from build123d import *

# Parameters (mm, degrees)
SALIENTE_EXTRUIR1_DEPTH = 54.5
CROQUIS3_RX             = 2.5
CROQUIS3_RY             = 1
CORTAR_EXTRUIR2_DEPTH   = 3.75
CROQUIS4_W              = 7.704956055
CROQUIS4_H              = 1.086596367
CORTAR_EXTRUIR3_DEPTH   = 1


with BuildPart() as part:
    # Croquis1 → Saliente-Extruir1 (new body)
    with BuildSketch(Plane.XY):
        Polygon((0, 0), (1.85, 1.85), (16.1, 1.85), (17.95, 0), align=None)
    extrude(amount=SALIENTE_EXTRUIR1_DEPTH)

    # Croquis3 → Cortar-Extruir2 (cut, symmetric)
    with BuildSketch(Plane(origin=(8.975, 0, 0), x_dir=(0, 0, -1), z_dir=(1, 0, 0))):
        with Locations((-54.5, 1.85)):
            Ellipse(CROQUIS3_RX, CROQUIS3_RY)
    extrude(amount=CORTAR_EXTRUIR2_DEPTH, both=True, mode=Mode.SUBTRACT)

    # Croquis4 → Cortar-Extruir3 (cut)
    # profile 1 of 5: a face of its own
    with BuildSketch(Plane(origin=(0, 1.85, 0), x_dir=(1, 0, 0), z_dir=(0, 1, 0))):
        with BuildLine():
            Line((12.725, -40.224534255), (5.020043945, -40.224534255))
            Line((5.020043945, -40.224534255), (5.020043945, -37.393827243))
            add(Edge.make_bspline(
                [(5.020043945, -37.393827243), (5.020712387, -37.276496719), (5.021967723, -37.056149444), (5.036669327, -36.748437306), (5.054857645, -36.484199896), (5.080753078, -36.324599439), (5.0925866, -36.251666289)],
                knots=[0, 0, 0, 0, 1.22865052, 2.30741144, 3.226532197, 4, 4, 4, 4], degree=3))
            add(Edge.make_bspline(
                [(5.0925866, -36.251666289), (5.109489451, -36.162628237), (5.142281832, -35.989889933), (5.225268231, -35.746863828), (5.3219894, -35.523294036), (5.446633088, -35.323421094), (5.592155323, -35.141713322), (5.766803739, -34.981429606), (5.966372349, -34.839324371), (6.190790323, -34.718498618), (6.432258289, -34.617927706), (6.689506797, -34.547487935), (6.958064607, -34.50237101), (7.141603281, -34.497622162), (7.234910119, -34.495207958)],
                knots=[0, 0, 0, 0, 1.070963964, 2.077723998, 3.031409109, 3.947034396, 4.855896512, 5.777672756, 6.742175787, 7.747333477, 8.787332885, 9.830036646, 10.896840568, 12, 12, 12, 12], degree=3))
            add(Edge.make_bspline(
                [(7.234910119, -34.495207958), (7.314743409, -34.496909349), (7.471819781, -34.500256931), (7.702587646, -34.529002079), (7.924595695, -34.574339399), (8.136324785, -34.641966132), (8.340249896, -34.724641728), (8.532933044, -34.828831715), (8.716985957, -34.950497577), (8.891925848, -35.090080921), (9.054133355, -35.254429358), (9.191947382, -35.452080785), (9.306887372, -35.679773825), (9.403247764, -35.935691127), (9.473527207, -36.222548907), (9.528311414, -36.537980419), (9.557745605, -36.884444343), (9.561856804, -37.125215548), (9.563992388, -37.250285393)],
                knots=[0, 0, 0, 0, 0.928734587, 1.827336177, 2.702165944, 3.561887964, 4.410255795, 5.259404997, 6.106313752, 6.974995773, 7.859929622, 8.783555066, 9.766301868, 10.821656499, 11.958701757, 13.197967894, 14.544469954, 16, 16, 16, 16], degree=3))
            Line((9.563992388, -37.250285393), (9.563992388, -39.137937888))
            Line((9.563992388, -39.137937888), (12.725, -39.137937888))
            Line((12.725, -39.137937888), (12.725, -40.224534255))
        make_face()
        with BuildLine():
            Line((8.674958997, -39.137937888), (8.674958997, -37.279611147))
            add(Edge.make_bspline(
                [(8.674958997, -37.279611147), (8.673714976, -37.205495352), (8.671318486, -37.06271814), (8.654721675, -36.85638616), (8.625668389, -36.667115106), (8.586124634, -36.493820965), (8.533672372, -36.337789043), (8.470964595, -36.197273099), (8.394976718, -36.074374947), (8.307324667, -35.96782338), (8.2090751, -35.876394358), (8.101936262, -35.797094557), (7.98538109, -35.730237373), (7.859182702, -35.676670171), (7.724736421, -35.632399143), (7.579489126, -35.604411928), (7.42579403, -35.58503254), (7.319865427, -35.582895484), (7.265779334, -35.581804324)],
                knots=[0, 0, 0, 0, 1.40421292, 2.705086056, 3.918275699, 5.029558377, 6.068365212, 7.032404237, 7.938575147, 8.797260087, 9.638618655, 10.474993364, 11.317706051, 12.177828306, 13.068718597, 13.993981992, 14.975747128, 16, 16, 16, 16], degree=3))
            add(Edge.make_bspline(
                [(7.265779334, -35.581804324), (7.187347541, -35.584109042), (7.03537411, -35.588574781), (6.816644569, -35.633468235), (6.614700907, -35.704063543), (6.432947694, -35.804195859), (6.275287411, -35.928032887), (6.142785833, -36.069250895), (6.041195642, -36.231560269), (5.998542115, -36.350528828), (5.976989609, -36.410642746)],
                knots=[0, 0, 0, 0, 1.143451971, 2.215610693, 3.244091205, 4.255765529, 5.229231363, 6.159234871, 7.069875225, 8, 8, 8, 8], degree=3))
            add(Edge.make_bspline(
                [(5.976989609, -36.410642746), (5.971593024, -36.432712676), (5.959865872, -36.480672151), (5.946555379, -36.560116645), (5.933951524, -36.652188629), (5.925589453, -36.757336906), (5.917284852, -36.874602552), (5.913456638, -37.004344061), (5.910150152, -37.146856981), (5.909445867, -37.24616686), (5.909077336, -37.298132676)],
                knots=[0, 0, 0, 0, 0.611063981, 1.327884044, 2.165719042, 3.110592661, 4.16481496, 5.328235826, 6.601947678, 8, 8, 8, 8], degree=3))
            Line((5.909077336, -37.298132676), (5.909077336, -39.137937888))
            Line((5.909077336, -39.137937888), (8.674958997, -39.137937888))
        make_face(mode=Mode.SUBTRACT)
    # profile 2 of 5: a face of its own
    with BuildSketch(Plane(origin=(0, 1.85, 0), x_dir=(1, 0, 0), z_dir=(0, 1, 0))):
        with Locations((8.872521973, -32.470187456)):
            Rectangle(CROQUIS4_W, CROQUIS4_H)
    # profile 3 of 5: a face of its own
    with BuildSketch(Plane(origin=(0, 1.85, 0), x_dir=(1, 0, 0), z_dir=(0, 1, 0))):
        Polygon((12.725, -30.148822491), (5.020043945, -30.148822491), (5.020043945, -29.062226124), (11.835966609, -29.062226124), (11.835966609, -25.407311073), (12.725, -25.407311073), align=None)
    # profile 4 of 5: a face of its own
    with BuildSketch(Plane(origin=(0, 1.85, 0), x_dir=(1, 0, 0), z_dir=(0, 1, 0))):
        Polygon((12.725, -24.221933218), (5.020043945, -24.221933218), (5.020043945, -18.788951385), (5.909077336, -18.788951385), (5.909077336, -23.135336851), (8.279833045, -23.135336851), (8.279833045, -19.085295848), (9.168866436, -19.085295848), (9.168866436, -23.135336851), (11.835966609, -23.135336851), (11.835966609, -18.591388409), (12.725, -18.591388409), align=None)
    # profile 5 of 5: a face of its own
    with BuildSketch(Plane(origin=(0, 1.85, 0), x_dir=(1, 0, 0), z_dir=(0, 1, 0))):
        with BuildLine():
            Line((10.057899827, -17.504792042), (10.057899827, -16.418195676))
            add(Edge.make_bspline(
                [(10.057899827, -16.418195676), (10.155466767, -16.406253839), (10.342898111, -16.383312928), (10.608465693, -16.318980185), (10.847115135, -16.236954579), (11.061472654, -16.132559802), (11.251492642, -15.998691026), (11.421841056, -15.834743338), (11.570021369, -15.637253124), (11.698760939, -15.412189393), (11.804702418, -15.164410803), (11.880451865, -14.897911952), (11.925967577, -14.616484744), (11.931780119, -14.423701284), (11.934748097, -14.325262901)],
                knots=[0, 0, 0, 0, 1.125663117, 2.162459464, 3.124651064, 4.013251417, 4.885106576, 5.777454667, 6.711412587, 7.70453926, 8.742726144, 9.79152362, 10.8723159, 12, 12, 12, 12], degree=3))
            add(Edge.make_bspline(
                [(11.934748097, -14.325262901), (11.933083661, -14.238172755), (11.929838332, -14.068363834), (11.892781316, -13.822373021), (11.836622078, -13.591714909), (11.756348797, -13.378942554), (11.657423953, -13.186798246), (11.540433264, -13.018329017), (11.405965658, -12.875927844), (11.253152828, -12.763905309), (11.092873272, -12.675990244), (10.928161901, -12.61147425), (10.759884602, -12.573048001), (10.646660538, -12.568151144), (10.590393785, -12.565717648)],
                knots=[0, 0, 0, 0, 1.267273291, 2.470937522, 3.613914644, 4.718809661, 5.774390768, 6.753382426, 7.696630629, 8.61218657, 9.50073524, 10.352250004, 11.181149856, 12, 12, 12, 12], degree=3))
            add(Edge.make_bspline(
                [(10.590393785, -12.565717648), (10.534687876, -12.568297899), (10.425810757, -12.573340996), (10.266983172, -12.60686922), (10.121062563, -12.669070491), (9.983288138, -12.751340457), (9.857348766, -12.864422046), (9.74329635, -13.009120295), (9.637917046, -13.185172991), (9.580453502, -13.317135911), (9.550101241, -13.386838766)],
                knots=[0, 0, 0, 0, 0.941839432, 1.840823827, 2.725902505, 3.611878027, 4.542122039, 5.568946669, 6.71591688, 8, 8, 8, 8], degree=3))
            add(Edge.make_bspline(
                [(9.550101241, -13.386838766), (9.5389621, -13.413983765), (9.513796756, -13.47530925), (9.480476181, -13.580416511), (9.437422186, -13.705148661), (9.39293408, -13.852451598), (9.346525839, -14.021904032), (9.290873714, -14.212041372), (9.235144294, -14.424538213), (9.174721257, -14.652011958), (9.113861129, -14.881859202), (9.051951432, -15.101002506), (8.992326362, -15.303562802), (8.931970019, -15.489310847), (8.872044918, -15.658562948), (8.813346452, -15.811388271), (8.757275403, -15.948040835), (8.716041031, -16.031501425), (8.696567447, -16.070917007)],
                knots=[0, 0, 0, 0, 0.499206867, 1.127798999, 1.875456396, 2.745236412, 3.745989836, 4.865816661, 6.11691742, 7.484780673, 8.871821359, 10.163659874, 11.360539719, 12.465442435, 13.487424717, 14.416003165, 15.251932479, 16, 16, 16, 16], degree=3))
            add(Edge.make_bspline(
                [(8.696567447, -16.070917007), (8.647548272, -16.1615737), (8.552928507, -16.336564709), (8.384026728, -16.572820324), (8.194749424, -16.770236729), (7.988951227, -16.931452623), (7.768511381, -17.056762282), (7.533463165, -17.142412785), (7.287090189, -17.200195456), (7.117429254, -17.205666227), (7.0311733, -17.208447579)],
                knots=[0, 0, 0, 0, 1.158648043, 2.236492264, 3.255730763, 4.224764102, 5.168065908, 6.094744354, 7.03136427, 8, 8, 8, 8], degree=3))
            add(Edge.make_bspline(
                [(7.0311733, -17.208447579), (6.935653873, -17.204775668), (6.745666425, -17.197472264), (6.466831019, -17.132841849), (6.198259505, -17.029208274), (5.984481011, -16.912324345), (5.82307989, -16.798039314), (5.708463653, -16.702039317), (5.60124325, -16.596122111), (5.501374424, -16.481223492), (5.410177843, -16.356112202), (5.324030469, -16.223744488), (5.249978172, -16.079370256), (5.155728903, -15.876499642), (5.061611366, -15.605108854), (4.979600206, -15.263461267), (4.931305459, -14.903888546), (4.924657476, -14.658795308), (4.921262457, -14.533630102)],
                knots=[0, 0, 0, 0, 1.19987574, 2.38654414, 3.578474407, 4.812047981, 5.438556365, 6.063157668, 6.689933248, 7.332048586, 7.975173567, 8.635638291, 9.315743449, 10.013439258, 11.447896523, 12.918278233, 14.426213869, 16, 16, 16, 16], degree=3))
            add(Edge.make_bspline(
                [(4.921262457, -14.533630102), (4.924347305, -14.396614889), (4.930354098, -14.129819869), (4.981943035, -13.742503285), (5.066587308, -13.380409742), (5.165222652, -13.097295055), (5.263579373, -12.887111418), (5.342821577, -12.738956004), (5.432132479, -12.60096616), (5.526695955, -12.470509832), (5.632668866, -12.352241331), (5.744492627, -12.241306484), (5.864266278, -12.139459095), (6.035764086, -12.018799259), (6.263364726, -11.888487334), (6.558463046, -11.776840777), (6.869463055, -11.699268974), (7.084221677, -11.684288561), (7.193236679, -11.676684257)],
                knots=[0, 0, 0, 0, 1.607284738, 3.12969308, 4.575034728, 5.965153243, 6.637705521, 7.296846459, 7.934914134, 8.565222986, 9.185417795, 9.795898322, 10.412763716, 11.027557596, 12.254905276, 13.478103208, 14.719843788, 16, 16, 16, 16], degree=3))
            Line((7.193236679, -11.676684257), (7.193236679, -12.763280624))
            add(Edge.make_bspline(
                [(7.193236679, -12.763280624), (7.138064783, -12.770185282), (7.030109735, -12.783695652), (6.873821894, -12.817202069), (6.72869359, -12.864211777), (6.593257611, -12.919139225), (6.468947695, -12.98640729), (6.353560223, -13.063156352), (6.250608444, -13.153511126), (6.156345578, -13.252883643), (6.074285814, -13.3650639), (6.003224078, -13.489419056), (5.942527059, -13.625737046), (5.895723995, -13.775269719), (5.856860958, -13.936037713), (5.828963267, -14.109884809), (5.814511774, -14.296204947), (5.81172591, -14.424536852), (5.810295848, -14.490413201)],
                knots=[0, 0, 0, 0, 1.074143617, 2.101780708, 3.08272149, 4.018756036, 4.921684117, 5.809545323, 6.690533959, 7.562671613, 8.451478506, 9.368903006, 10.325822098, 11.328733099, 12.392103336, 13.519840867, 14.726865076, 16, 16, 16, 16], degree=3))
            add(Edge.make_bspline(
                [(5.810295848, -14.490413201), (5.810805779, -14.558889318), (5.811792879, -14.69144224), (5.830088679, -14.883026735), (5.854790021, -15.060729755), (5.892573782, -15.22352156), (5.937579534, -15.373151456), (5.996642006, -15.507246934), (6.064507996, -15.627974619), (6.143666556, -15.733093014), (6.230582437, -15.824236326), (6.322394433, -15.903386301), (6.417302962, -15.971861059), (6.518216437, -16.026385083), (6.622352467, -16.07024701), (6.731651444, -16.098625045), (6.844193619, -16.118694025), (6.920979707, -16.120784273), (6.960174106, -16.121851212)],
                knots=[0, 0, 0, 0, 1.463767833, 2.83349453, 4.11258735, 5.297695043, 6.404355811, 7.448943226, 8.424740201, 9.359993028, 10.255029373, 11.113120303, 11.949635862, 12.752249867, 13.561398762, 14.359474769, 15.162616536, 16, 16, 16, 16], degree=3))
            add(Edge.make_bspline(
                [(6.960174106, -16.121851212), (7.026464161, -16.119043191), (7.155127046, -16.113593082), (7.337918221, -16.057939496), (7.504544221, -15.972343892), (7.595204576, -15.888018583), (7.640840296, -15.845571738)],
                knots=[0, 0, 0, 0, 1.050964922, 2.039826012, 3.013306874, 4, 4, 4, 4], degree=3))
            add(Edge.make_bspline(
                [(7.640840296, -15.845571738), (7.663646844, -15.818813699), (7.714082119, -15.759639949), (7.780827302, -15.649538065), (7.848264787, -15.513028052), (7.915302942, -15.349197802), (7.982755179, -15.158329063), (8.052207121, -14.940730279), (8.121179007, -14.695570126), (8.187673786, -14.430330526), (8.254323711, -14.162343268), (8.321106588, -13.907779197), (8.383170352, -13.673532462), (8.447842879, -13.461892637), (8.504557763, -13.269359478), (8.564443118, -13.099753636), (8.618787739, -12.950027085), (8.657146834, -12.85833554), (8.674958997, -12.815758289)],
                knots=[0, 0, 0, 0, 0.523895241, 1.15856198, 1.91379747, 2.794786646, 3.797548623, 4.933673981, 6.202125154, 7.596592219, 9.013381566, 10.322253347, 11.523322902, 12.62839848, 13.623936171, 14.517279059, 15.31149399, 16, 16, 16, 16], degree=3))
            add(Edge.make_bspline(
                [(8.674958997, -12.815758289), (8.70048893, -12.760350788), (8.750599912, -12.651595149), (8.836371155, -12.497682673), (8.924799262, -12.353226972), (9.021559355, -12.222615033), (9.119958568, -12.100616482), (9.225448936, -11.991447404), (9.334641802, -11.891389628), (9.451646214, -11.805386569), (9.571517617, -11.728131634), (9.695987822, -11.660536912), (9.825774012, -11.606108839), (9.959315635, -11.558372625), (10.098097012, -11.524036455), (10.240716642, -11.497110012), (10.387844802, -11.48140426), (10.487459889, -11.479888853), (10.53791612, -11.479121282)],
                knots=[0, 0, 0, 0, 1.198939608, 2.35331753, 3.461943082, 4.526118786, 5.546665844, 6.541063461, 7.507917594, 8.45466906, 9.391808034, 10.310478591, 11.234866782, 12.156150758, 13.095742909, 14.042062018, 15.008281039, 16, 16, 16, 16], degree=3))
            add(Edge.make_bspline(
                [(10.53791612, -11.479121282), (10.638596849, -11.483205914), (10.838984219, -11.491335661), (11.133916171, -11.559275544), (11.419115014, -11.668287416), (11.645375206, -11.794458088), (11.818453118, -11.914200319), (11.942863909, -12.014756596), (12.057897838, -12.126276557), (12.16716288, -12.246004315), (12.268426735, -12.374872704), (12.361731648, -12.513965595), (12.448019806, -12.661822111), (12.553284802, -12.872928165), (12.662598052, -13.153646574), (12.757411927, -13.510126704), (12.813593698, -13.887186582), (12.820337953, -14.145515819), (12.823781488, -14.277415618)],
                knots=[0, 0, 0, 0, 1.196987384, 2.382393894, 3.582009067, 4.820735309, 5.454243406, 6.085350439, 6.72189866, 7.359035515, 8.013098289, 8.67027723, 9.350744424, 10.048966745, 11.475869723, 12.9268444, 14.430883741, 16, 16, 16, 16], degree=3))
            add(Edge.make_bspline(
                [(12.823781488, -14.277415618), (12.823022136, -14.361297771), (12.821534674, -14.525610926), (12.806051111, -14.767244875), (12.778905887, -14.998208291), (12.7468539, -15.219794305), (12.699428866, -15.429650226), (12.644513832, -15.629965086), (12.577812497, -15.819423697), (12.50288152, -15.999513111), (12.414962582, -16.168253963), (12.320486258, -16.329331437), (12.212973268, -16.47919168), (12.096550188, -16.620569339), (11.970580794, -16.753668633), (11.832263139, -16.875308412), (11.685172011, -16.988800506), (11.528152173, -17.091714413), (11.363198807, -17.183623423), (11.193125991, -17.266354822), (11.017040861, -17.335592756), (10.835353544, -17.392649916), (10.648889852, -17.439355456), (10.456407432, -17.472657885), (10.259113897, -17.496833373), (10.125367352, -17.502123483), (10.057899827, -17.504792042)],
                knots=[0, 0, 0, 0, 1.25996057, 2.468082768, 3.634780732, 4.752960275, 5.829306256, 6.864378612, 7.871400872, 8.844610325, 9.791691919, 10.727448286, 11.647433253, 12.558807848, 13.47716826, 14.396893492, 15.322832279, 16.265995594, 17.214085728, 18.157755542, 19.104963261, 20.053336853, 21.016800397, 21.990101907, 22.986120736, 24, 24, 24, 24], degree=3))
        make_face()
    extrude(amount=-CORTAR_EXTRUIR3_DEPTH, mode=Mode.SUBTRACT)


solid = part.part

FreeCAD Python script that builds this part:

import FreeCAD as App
import Part
import Sketcher

V = App.Vector
Q = App.Units.Quantity


def add_polygon(sketch, points):
    """Adds a closed chain of lines whose ends are joined by coincident constraints."""
    first, n = sketch.GeometryCount, len(points)
    for a, b in zip(points, points[1:] + points[:1]):
        sketch.addGeometry(Part.LineSegment(App.Vector(*a, 0), App.Vector(*b, 0)), False)
    for i in range(n):
        sketch.addConstraint(Sketcher.Constraint("Coincident", first + i, 2, first + (i + 1) % n, 1))

doc = App.newDocument("Part")
body = doc.addObject("PartDesign::Body", "Body")

# Sketch on XY plane
sketch1 = body.newObject("Sketcher::SketchObject", "Sketch")
sketch1.AttachmentSupport = (doc.getObject("XY_Plane"), [""])
sketch1.MapMode = "FlatFace"
add_polygon(sketch1, [(1.85, 1.85), (0, 0), (17.95, 0), (16.1, 1.85)])  # lines 0-3
sketch1.addConstraint([
    Sketcher.Constraint("Horizontal", 1),
    Sketcher.Constraint("Horizontal", 3),
    Sketcher.Constraint("Coincident", 0, 2, -1, 1),
    Sketcher.Constraint("Perpendicular", 0, 2),
    Sketcher.Constraint("Equal", 0, 2),
    Sketcher.Constraint("DistanceX", 1, 1, 1, 2, Q("17.95 mm")),
    Sketcher.Constraint("DistanceX", 3, 2, 3, 1, Q("14.25 mm")),
])
pad1 = body.newObject("PartDesign::Pad", "Pad")
pad1.Profile = sketch1
pad1.Length = 54.5

# Sketch on YZ plane
sketch2 = body.newObject("Sketcher::SketchObject", "Sketch001")
sketch2.AttachmentSupport = (doc.getObject("YZ_Plane"), [""])
sketch2.MapMode = "FlatFace"
sketch2.AttachmentOffset = App.Placement(V(0, 0, 8.975), App.Rotation())
sketch2.addGeometry(Part.Ellipse(V(1.85, 52, 0), V(2.85, 54.5, 0), V(1.85, 54.5, 0)), False)
sketch2.addConstraint(Sketcher.Constraint("Block", 0))
pocket1 = body.newObject("PartDesign::Pocket", "Pocket")
pocket1.Profile = sketch2
pocket1.Length = 7.5
pocket1.Midplane = True

# Sketch on XZ plane
sketch3 = body.newObject("Sketcher::SketchObject", "Sketch002")
sketch3.AttachmentSupport = (doc.getObject("XZ_Plane"), [""])
sketch3.MapMode = "FlatFace"
sketch3.AttachmentOffset = App.Placement(V(0, 0, -1.85), App.Rotation())
sketch3.addGeometry(Part.LineSegment(V(5.020044, 40.224534, 0), V(12.725, 40.224534, 0)), False)  # 0
sketch3.addGeometry(Part.LineSegment(V(12.725, 40.224534, 0), V(12.725, 39.137938, 0)), False)  # 1
sketch3.addGeometry(Part.LineSegment(V(12.725, 39.137938, 0), V(9.563992, 39.137938, 0)), False)  # 2
sketch3.addGeometry(Part.LineSegment(V(9.563992, 39.137938, 0), V(9.563992, 37.250285, 0)), False)  # 3
sketch3.addGeometry(Part.BSplineCurve([V(7.23491, 34.495208, 0), V(7.314743, 34.496909, 0), V(7.47182, 34.500257, 0), V(7.702588, 34.529002, 0), V(7.924596, 34.574339, 0), V(8.136325, 34.641966, 0), V(8.34025, 34.724642, 0), V(8.532933, 34.828832, 0), V(8.716986, 34.950498, 0), V(8.891926, 35.090081, 0), V(9.054133, 35.254429, 0), V(9.191947, 35.452081, 0), V(9.306887, 35.679774, 0), V(9.403248, 35.935691, 0), V(9.473527, 36.222549, 0), V(9.528311, 36.53798, 0), V(9.557746, 36.884444, 0), V(9.561857, 37.125216, 0), V(9.563992, 37.250285, 0)], [4, 1, 1, 1, 1, 1, 1, 1, 1, 1, 1, 1, 1, 1, 1, 1, 4], [0, 0.928734587, 1.827336177, 2.702165944, 3.561887964, 4.410255795, 5.259404997, 6.106313752, 6.974995773, 7.859929622, 8.783555066, 9.766301868, 10.821656499, 11.958701757, 13.197967894, 14.544469954, 16], False, 3, [1, 1, 1, 1, 1, 1, 1, 1, 1, 1, 1, 1, 1, 1, 1, 1, 1, 1, 1], False), False)  # 4
sketch3.addGeometry(Part.BSplineCurve([V(5.092587, 36.251666, 0), V(5.109489, 36.162628, 0), V(5.142282, 35.98989, 0), V(5.225268, 35.746864, 0), V(5.321989, 35.523294, 0), V(5.446633, 35.323421, 0), V(5.592155, 35.141713, 0), V(5.766804, 34.98143, 0), V(5.966372, 34.839324, 0), V(6.19079, 34.718499, 0), V(6.432258, 34.617928, 0), V(6.689507, 34.547488, 0), V(6.958065, 34.502371, 0), V(7.141603, 34.497622, 0), V(7.23491, 34.495208, 0)], [4, 1, 1, 1, 1, 1, 1, 1, 1, 1, 1, 1, 4], [0, 1.070963964, 2.077723998, 3.031409109, 3.947034396, 4.855896512, 5.777672756, 6.742175787, 7.747333477, 8.787332885, 9.830036646, 10.896840568, 12], False, 3, [1, 1, 1, 1, 1, 1, 1, 1, 1, 1, 1, 1, 1, 1, 1], False), False)  # 5
sketch3.addGeometry(Part.BSplineCurve([V(5.020044, 37.393827, 0), V(5.020712, 37.276497, 0), V(5.021968, 37.056149, 0), V(5.036669, 36.748437, 0), V(5.054858, 36.4842, 0), V(5.080753, 36.324599, 0), V(5.092587, 36.251666, 0)], [4, 1, 1, 1, 4], [0, 1.22865052, 2.30741144, 3.226532197, 4], False, 3, [1, 1, 1, 1, 1, 1, 1], False), False)  # 6
sketch3.addGeometry(Part.LineSegment(V(5.020044, 37.393827, 0), V(5.020044, 40.224534, 0)), False)  # 7
sketch3.addGeometry(Part.LineSegment(V(8.674959, 39.137938, 0), V(5.909077, 39.137938, 0)), False)  # 8
sketch3.addGeometry(Part.LineSegment(V(5.909077, 39.137938, 0), V(5.909077, 37.298133, 0)), False)  # 9
sketch3.addGeometry(Part.BSplineCurve([V(5.97699, 36.410643, 0), V(5.971593, 36.432713, 0), V(5.959866, 36.480672, 0), V(5.946555, 36.560117, 0), V(5.933952, 36.652189, 0), V(5.925589, 36.757337, 0), V(5.917285, 36.874603, 0), V(5.913457, 37.004344, 0), V(5.91015, 37.146857, 0), V(5.909446, 37.246167, 0), V(5.909077, 37.298133, 0)], [4, 1, 1, 1, 1, 1, 1, 1, 4], [0, 0.611063981, 1.327884044, 2.165719042, 3.110592661, 4.16481496, 5.328235826, 6.601947678, 8], False, 3, [1, 1, 1, 1, 1, 1, 1, 1, 1, 1, 1], False), False)  # 10
sketch3.addGeometry(Part.BSplineCurve([V(7.265779, 35.581804, 0), V(7.187348, 35.584109, 0), V(7.035374, 35.588575, 0), V(6.816645, 35.633468, 0), V(6.614701, 35.704064, 0), V(6.432948, 35.804196, 0), V(6.275287, 35.928033, 0), V(6.142786, 36.069251, 0), V(6.041196, 36.23156, 0), V(5.998542, 36.350529, 0), V(5.97699, 36.410643, 0)], [4, 1, 1, 1, 1, 1, 1, 1, 4], [0, 1.143451971, 2.215610693, 3.244091205, 4.255765529, 5.229231363, 6.159234871, 7.069875225, 8], False, 3, [1, 1, 1, 1, 1, 1, 1, 1, 1, 1, 1], False), False)  # 11
sketch3.addGeometry(Part.BSplineCurve([V(8.674959, 37.279611, 0), V(8.673715, 37.205495, 0), V(8.671318, 37.062718, 0), V(8.654722, 36.856386, 0), V(8.625668, 36.667115, 0), V(8.586125, 36.493821, 0), V(8.533672, 36.337789, 0), V(8.470965, 36.197273, 0), V(8.394977, 36.074375, 0), V(8.307325, 35.967823, 0), V(8.209075, 35.876394, 0), V(8.101936, 35.797095, 0), V(7.985381, 35.730237, 0), V(7.859183, 35.67667, 0), V(7.724736, 35.632399, 0), V(7.579489, 35.604412, 0), V(7.425794, 35.585033, 0), V(7.319865, 35.582895, 0), V(7.265779, 35.581804, 0)], [4, 1, 1, 1, 1, 1, 1, 1, 1, 1, 1, 1, 1, 1, 1, 1, 4], [0, 1.40421292, 2.705086056, 3.918275699, 5.029558377, 6.068365212, 7.032404237, 7.938575147, 8.797260087, 9.638618655, 10.474993364, 11.317706051, 12.177828306, 13.068718597, 13.993981992, 14.975747128, 16], False, 3, [1, 1, 1, 1, 1, 1, 1, 1, 1, 1, 1, 1, 1, 1, 1, 1, 1, 1, 1], False), False)  # 12
sketch3.addGeometry(Part.LineSegment(V(8.674959, 37.279611, 0), V(8.674959, 39.137938, 0)), False)  # 13
add_polygon(sketch3, [(5.020044, 31.926889), (5.020044, 33.013486), (12.725, 33.013486), (12.725, 31.926889)])  # lines 14-17
add_polygon(sketch3, [(5.020044, 30.148822), (12.725, 30.148822), (12.725, 25.407311), (11.835967, 25.407311), (11.835967, 29.062226), (5.020044, 29.062226)])  # lines 18-23
add_polygon(sketch3, [(5.020044, 24.221933), (12.725, 24.221933), (12.725, 18.591388), (11.835967, 18.591388), (11.835967, 23.135337), (9.168866, 23.135337), (9.168866, 19.085296), (8.279833, 19.085296), (8.279833, 23.135337), (5.909077, 23.135337), (5.909077, 18.788951), (5.020044, 18.788951)])  # lines 24-35
sketch3.addGeometry(Part.LineSegment(V(10.0579, 16.418196, 0), V(10.0579, 17.504792, 0)), False)  # 36
sketch3.addGeometry(Part.BSplineCurve([V(12.823781, 14.277416, 0), V(12.823022, 14.361298, 0), V(12.821535, 14.525611, 0), V(12.806051, 14.767245, 0), V(12.778906, 14.998208, 0), V(12.746854, 15.219794, 0), V(12.699429, 15.42965, 0), V(12.644514, 15.629965, 0), V(12.577812, 15.819424, 0), V(12.502882, 15.999513, 0), V(12.414963, 16.168254, 0), V(12.320486, 16.329331, 0), V(12.212973, 16.479192, 0), V(12.09655, 16.620569, 0), V(11.970581, 16.753669, 0), V(11.832263, 16.875308, 0), V(11.685172, 16.988801, 0), V(11.528152, 17.091714, 0), V(11.363199, 17.183623, 0), V(11.193126, 17.266355, 0), V(11.017041, 17.335593, 0), V(10.835354, 17.39265, 0), V(10.64889, 17.439355, 0), V(10.456407, 17.472658, 0), V(10.259114, 17.496833, 0), V(10.125367, 17.502123, 0), V(10.0579, 17.504792, 0)], [4, 1, 1, 1, 1, 1, 1, 1, 1, 1, 1, 1, 1, 1, 1, 1, 1, 1, 1, 1, 1, 1, 1, 1, 4], [0, 1.25996057, 2.468082768, 3.634780732, 4.752960275, 5.829306256, 6.864378612, 7.871400872, 8.844610325, 9.791691919, 10.727448286, 11.647433253, 12.558807848, 13.47716826, 14.396893492, 15.322832279, 16.265995594, 17.214085728, 18.157755542, 19.104963261, 20.053336853, 21.016800397, 21.990101907, 22.986120736, 24], False, 3, [1, 1, 1, 1, 1, 1, 1, 1, 1, 1, 1, 1, 1, 1, 1, 1, 1, 1, 1, 1, 1, 1, 1, 1, 1, 1, 1], False), False)  # 37
sketch3.addGeometry(Part.BSplineCurve([V(10.537916, 11.479121, 0), V(10.638597, 11.483206, 0), V(10.838984, 11.491336, 0), V(11.133916, 11.559276, 0), V(11.419115, 11.668287, 0), V(11.645375, 11.794458, 0), V(11.818453, 11.9142, 0), V(11.942864, 12.014757, 0), V(12.057898, 12.126277, 0), V(12.167163, 12.246004, 0), V(12.268427, 12.374873, 0), V(12.361732, 12.513966, 0), V(12.44802, 12.661822, 0), V(12.553285, 12.872928, 0), V(12.662598, 13.153647, 0), V(12.757412, 13.510127, 0), V(12.813594, 13.887187, 0), V(12.820338, 14.145516, 0), V(12.823781, 14.277416, 0)], [4, 1, 1, 1, 1, 1, 1, 1, 1, 1, 1, 1, 1, 1, 1, 1, 4], [0, 1.196987384, 2.382393894, 3.582009067, 4.820735309, 5.454243406, 6.085350439, 6.72189866, 7.359035515, 8.013098289, 8.67027723, 9.350744424, 10.048966745, 11.475869723, 12.9268444, 14.430883741, 16], False, 3, [1, 1, 1, 1, 1, 1, 1, 1, 1, 1, 1, 1, 1, 1, 1, 1, 1, 1, 1], False), False)  # 38
sketch3.addGeometry(Part.BSplineCurve([V(8.674959, 12.815758, 0), V(8.700489, 12.760351, 0), V(8.7506, 12.651595, 0), V(8.836371, 12.497683, 0), V(8.924799, 12.353227, 0), V(9.021559, 12.222615, 0), V(9.119959, 12.100616, 0), V(9.225449, 11.991447, 0), V(9.334642, 11.89139, 0), V(9.451646, 11.805387, 0), V(9.571518, 11.728132, 0), V(9.695988, 11.660537, 0), V(9.825774, 11.606109, 0), V(9.959316, 11.558373, 0), V(10.098097, 11.524036, 0), V(10.240717, 11.49711, 0), V(10.387845, 11.481404, 0), V(10.48746, 11.479889, 0), V(10.537916, 11.479121, 0)], [4, 1, 1, 1, 1, 1, 1, 1, 1, 1, 1, 1, 1, 1, 1, 1, 4], [0, 1.198939608, 2.35331753, 3.461943082, 4.526118786, 5.546665844, 6.541063461, 7.507917594, 8.45466906, 9.391808034, 10.310478591, 11.234866782, 12.156150758, 13.095742909, 14.042062018, 15.008281039, 16], False, 3, [1, 1, 1, 1, 1, 1, 1, 1, 1, 1, 1, 1, 1, 1, 1, 1, 1, 1, 1], False), False)  # 39
sketch3.addGeometry(Part.BSplineCurve([V(7.64084, 15.845572, 0), V(7.663647, 15.818814, 0), V(7.714082, 15.75964, 0), V(7.780827, 15.649538, 0), V(7.848265, 15.513028, 0), V(7.915303, 15.349198, 0), V(7.982755, 15.158329, 0), V(8.052207, 14.94073, 0), V(8.121179, 14.69557, 0), V(8.187674, 14.430331, 0), V(8.254324, 14.162343, 0), V(8.321107, 13.907779, 0), V(8.38317, 13.673532, 0), V(8.447843, 13.461893, 0), V(8.504558, 13.269359, 0), V(8.564443, 13.099754, 0), V(8.618788, 12.950027, 0), V(8.657147, 12.858336, 0), V(8.674959, 12.815758, 0)], [4, 1, 1, 1, 1, 1, 1, 1, 1, 1, 1, 1, 1, 1, 1, 1, 4], [0, 0.523895241, 1.15856198, 1.91379747, 2.794786646, 3.797548623, 4.933673981, 6.202125154, 7.596592219, 9.013381566, 10.322253347, 11.523322902, 12.62839848, 13.623936171, 14.517279059, 15.31149399, 16], False, 3, [1, 1, 1, 1, 1, 1, 1, 1, 1, 1, 1, 1, 1, 1, 1, 1, 1, 1, 1], False), False)  # 40
sketch3.addGeometry(Part.BSplineCurve([V(6.960174, 16.121851, 0), V(7.026464, 16.119043, 0), V(7.155127, 16.113593, 0), V(7.337918, 16.057939, 0), V(7.504544, 15.972344, 0), V(7.595205, 15.888019, 0), V(7.64084, 15.845572, 0)], [4, 1, 1, 1, 4], [0, 1.050964922, 2.039826012, 3.013306874, 4], False, 3, [1, 1, 1, 1, 1, 1, 1], False), False)  # 41
sketch3.addGeometry(Part.BSplineCurve([V(5.810296, 14.490413, 0), V(5.810806, 14.558889, 0), V(5.811793, 14.691442, 0), V(5.830089, 14.883027, 0), V(5.85479, 15.06073, 0), V(5.892574, 15.223522, 0), V(5.93758, 15.373151, 0), V(5.996642, 15.507247, 0), V(6.064508, 15.627975, 0), V(6.143667, 15.733093, 0), V(6.230582, 15.824236, 0), V(6.322394, 15.903386, 0), V(6.417303, 15.971861, 0), V(6.518216, 16.026385, 0), V(6.622352, 16.070247, 0), V(6.731651, 16.098625, 0), V(6.844194, 16.118694, 0), V(6.92098, 16.120784, 0), V(6.960174, 16.121851, 0)], [4, 1, 1, 1, 1, 1, 1, 1, 1, 1, 1, 1, 1, 1, 1, 1, 4], [0, 1.463767833, 2.83349453, 4.11258735, 5.297695043, 6.404355811, 7.448943226, 8.424740201, 9.359993028, 10.255029373, 11.113120303, 11.949635862, 12.752249867, 13.561398762, 14.359474769, 15.162616536, 16], False, 3, [1, 1, 1, 1, 1, 1, 1, 1, 1, 1, 1, 1, 1, 1, 1, 1, 1, 1, 1], False), False)  # 42
sketch3.addGeometry(Part.BSplineCurve([V(7.193237, 12.763281, 0), V(7.138065, 12.770185, 0), V(7.03011, 12.783696, 0), V(6.873822, 12.817202, 0), V(6.728694, 12.864212, 0), V(6.593258, 12.919139, 0), V(6.468948, 12.986407, 0), V(6.35356, 13.063156, 0), V(6.250608, 13.153511, 0), V(6.156346, 13.252884, 0), V(6.074286, 13.365064, 0), V(6.003224, 13.489419, 0), V(5.942527, 13.625737, 0), V(5.895724, 13.77527, 0), V(5.856861, 13.936038, 0), V(5.828963, 14.109885, 0), V(5.814512, 14.296205, 0), V(5.811726, 14.424537, 0), V(5.810296, 14.490413, 0)], [4, 1, 1, 1, 1, 1, 1, 1, 1, 1, 1, 1, 1, 1, 1, 1, 4], [0, 1.074143617, 2.101780708, 3.08272149, 4.018756036, 4.921684117, 5.809545323, 6.690533959, 7.562671613, 8.451478506, 9.368903006, 10.325822098, 11.328733099, 12.392103336, 13.519840867, 14.726865076, 16], False, 3, [1, 1, 1, 1, 1, 1, 1, 1, 1, 1, 1, 1, 1, 1, 1, 1, 1, 1, 1], False), False)  # 43
sketch3.addGeometry(Part.LineSegment(V(7.193237, 12.763281, 0), V(7.193237, 11.676684, 0)), False)  # 44
sketch3.addGeometry(Part.BSplineCurve([V(4.921262, 14.53363, 0), V(4.924347, 14.396615, 0), V(4.930354, 14.12982, 0), V(4.981943, 13.742503, 0), V(5.066587, 13.38041, 0), V(5.165223, 13.097295, 0), V(5.263579, 12.887111, 0), V(5.342822, 12.738956, 0), V(5.432132, 12.600966, 0), V(5.526696, 12.47051, 0), V(5.632669, 12.352241, 0), V(5.744493, 12.241306, 0), V(5.864266, 12.139459, 0), V(6.035764, 12.018799, 0), V(6.263365, 11.888487, 0), V(6.558463, 11.776841, 0), V(6.869463, 11.699269, 0), V(7.084222, 11.684289, 0), V(7.193237, 11.676684, 0)], [4, 1, 1, 1, 1, 1, 1, 1, 1, 1, 1, 1, 1, 1, 1, 1, 4], [0, 1.607284738, 3.12969308, 4.575034728, 5.965153243, 6.637705521, 7.296846459, 7.934914134, 8.565222986, 9.185417795, 9.795898322, 10.412763716, 11.027557596, 12.254905276, 13.478103208, 14.719843788, 16], False, 3, [1, 1, 1, 1, 1, 1, 1, 1, 1, 1, 1, 1, 1, 1, 1, 1, 1, 1, 1], False), False)  # 45
sketch3.addGeometry(Part.BSplineCurve([V(7.031173, 17.208448, 0), V(6.935654, 17.204776, 0), V(6.745666, 17.197472, 0), V(6.466831, 17.132842, 0), V(6.19826, 17.029208, 0), V(5.984481, 16.912324, 0), V(5.82308, 16.798039, 0), V(5.708464, 16.702039, 0), V(5.601243, 16.596122, 0), V(5.501374, 16.481223, 0), V(5.410178, 16.356112, 0), V(5.32403, 16.223744, 0), V(5.249978, 16.07937, 0), V(5.155729, 15.8765, 0), V(5.061611, 15.605109, 0), V(4.9796, 15.263461, 0), V(4.931305, 14.903889, 0), V(4.924657, 14.658795, 0), V(4.921262, 14.53363, 0)], [4, 1, 1, 1, 1, 1, 1, 1, 1, 1, 1, 1, 1, 1, 1, 1, 4], [0, 1.19987574, 2.38654414, 3.578474407, 4.812047981, 5.438556365, 6.063157668, 6.689933248, 7.332048586, 7.975173567, 8.635638291, 9.315743449, 10.013439258, 11.447896523, 12.918278233, 14.426213869, 16], False, 3, [1, 1, 1, 1, 1, 1, 1, 1, 1, 1, 1, 1, 1, 1, 1, 1, 1, 1, 1], False), False)  # 46
sketch3.addGeometry(Part.BSplineCurve([V(8.696567, 16.070917, 0), V(8.647548, 16.161574, 0), V(8.552929, 16.336565, 0), V(8.384027, 16.57282, 0), V(8.194749, 16.770237, 0), V(7.988951, 16.931453, 0), V(7.768511, 17.056762, 0), V(7.533463, 17.142413, 0), V(7.28709, 17.200195, 0), V(7.117429, 17.205666, 0), V(7.031173, 17.208448, 0)], [4, 1, 1, 1, 1, 1, 1, 1, 4], [0, 1.158648043, 2.236492264, 3.255730763, 4.224764102, 5.168065908, 6.094744354, 7.03136427, 8], False, 3, [1, 1, 1, 1, 1, 1, 1, 1, 1, 1, 1], False), False)  # 47
sketch3.addGeometry(Part.BSplineCurve([V(9.550101, 13.386839, 0), V(9.538962, 13.413984, 0), V(9.513797, 13.475309, 0), V(9.480476, 13.580417, 0), V(9.437422, 13.705149, 0), V(9.392934, 13.852452, 0), V(9.346526, 14.021904, 0), V(9.290874, 14.212041, 0), V(9.235144, 14.424538, 0), V(9.174721, 14.652012, 0), V(9.113861, 14.881859, 0), V(9.051951, 15.101003, 0), V(8.992326, 15.303563, 0), V(8.93197, 15.489311, 0), V(8.872045, 15.658563, 0), V(8.813346, 15.811388, 0), V(8.757275, 15.948041, 0), V(8.716041, 16.031501, 0), V(8.696567, 16.070917, 0)], [4, 1, 1, 1, 1, 1, 1, 1, 1, 1, 1, 1, 1, 1, 1, 1, 4], [0, 0.499206867, 1.127798999, 1.875456396, 2.745236412, 3.745989836, 4.865816661, 6.11691742, 7.484780673, 8.871821359, 10.163659874, 11.360539719, 12.465442435, 13.487424717, 14.416003165, 15.251932479, 16], False, 3, [1, 1, 1, 1, 1, 1, 1, 1, 1, 1, 1, 1, 1, 1, 1, 1, 1, 1, 1], False), False)  # 48
sketch3.addGeometry(Part.BSplineCurve([V(10.590394, 12.565718, 0), V(10.534688, 12.568298, 0), V(10.425811, 12.573341, 0), V(10.266983, 12.606869, 0), V(10.121063, 12.66907, 0), V(9.983288, 12.75134, 0), V(9.857349, 12.864422, 0), V(9.743296, 13.00912, 0), V(9.637917, 13.185173, 0), V(9.580454, 13.317136, 0), V(9.550101, 13.386839, 0)], [4, 1, 1, 1, 1, 1, 1, 1, 4], [0, 0.941839432, 1.840823827, 2.725902505, 3.611878027, 4.542122039, 5.568946669, 6.71591688, 8], False, 3, [1, 1, 1, 1, 1, 1, 1, 1, 1, 1, 1], False), False)  # 49
sketch3.addGeometry(Part.BSplineCurve([V(11.934748, 14.325263, 0), V(11.933084, 14.238173, 0), V(11.929838, 14.068364, 0), V(11.892781, 13.822373, 0), V(11.836622, 13.591715, 0), V(11.756349, 13.378943, 0), V(11.657424, 13.186798, 0), V(11.540433, 13.018329, 0), V(11.405966, 12.875928, 0), V(11.253153, 12.763905, 0), V(11.092873, 12.67599, 0), V(10.928162, 12.611474, 0), V(10.759885, 12.573048, 0), V(10.646661, 12.568151, 0), V(10.590394, 12.565718, 0)], [4, 1, 1, 1, 1, 1, 1, 1, 1, 1, 1, 1, 4], [0, 1.267273291, 2.470937522, 3.613914644, 4.718809661, 5.774390768, 6.753382426, 7.696630629, 8.61218657, 9.50073524, 10.352250004, 11.181149856, 12], False, 3, [1, 1, 1, 1, 1, 1, 1, 1, 1, 1, 1, 1, 1, 1, 1], False), False)  # 50
sketch3.addGeometry(Part.BSplineCurve([V(10.0579, 16.418196, 0), V(10.155467, 16.406254, 0), V(10.342898, 16.383313, 0), V(10.608466, 16.31898, 0), V(10.847115, 16.236955, 0), V(11.061473, 16.13256, 0), V(11.251493, 15.998691, 0), V(11.421841, 15.834743, 0), V(11.570021, 15.637253, 0), V(11.698761, 15.412189, 0), V(11.804702, 15.164411, 0), V(11.880452, 14.897912, 0), V(11.925968, 14.616485, 0), V(11.93178, 14.423701, 0), V(11.934748, 14.325263, 0)], [4, 1, 1, 1, 1, 1, 1, 1, 1, 1, 1, 1, 4], [0, 1.125663117, 2.162459464, 3.124651064, 4.013251417, 4.885106576, 5.777454667, 6.711412587, 7.70453926, 8.742726144, 9.79152362, 10.8723159, 12], False, 3, [1, 1, 1, 1, 1, 1, 1, 1, 1, 1, 1, 1, 1, 1, 1], False), False)  # 51
sketch3.addConstraint([
    Sketcher.Constraint("Block", 4),
    Sketcher.Constraint("Block", 5),
    Sketcher.Constraint("Block", 6),
    Sketcher.Constraint("Block", 10),
    Sketcher.Constraint("Block", 11),
    Sketcher.Constraint("Block", 12),
    Sketcher.Constraint("Block", 37),
    Sketcher.Constraint("Block", 38),
    Sketcher.Constraint("Block", 39),
    Sketcher.Constraint("Block", 40),
    Sketcher.Constraint("Block", 41),
    Sketcher.Constraint("Block", 42),
    Sketcher.Constraint("Block", 43),
    Sketcher.Constraint("Block", 45),
    Sketcher.Constraint("Block", 46),
    Sketcher.Constraint("Block", 47),
    Sketcher.Constraint("Block", 48),
    Sketcher.Constraint("Block", 49),
    Sketcher.Constraint("Block", 50),
    Sketcher.Constraint("Block", 51),
    Sketcher.Constraint("Coincident", 0, 2, 1, 1),
    Sketcher.Constraint("Coincident", 1, 2, 2, 1),
    Sketcher.Constraint("Coincident", 2, 2, 3, 1),
    Sketcher.Constraint("Coincident", 3, 2, 4, 2),
    Sketcher.Constraint("Coincident", 6, 1, 7, 1),
    Sketcher.Constraint("Coincident", 7, 2, 0, 1),
    Sketcher.Constraint("Coincident", 8, 2, 9, 1),
    Sketcher.Constraint("Coincident", 9, 2, 10, 2),
    Sketcher.Constraint("Coincident", 12, 1, 13, 1),
    Sketcher.Constraint("Coincident", 13, 2, 8, 1),
    Sketcher.Constraint("Coincident", 36, 2, 37, 2),
    Sketcher.Constraint("Coincident", 43, 1, 44, 1),
    Sketcher.Constraint("Coincident", 44, 2, 45, 2),
    Sketcher.Constraint("Coincident", 51, 1, 36, 1),
    Sketcher.Constraint("Horizontal", 0),
    Sketcher.Constraint("Vertical", 1),
    Sketcher.Constraint("Horizontal", 2),
    Sketcher.Constraint("Vertical", 3),
    Sketcher.Constraint("Vertical", 7),
    Sketcher.Constraint("Horizontal", 8),
    Sketcher.Constraint("Vertical", 9),
    Sketcher.Constraint("Vertical", 13),
    Sketcher.Constraint("Vertical", 14),
    Sketcher.Constraint("Horizontal", 15),
    Sketcher.Constraint("Vertical", 16),
    Sketcher.Constraint("Horizontal", 17),
    Sketcher.Constraint("Horizontal", 18),
    Sketcher.Constraint("Vertical", 19),
    Sketcher.Constraint("Horizontal", 20),
    Sketcher.Constraint("Vertical", 21),
    Sketcher.Constraint("Horizontal", 22),
    Sketcher.Constraint("Vertical", 23),
    Sketcher.Constraint("Horizontal", 24),
    Sketcher.Constraint("Vertical", 25),
    Sketcher.Constraint("Horizontal", 26),
    Sketcher.Constraint("Vertical", 27),
    Sketcher.Constraint("Horizontal", 28),
    Sketcher.Constraint("Vertical", 29),
    Sketcher.Constraint("Horizontal", 30),
    Sketcher.Constraint("Vertical", 31),
    Sketcher.Constraint("Horizontal", 32),
    Sketcher.Constraint("Vertical", 33),
    Sketcher.Constraint("Horizontal", 34),
    Sketcher.Constraint("Vertical", 35),
    Sketcher.Constraint("DistanceX", 28, 2, 28, 1, Q("2.6671 mm")),
    Sketcher.Constraint("DistanceX", -1, 1, 0, 2, Q("12.725 mm")),
    Sketcher.Constraint("DistanceX", -1, 1, 15, 2, Q("12.725 mm")),
    Sketcher.Constraint("DistanceX", -1, 1, 18, 2, Q("12.725 mm")),
    Sketcher.Constraint("DistanceX", -1, 1, 24, 2, Q("12.725 mm")),
    Sketcher.Constraint("DistanceY", 19, 2, 19, 1, Q("4.741511 mm")),
    Sketcher.Constraint("DistanceY", 27, 1, 27, 2, Q("4.543948 mm")),
    Sketcher.Constraint("DistanceY", 29, 2, 29, 1, Q("4.050041 mm")),
    Sketcher.Constraint("DistanceY", 31, 1, 31, 2, Q("4.050041 mm")),
    Sketcher.Constraint("DistanceY", 35, 1, 35, 2, Q("5.432982 mm")),
    Sketcher.Constraint("DistanceY", 9, 2, 7, 2, Q("2.926402 mm")),
    Sketcher.Constraint("DistanceY", 14, 2, 3, 2, Q("4.2368 mm")),
    Sketcher.Constraint("DistanceX", 28, 2, 20, 2, Q("2.6671 mm")),
    Sketcher.Constraint("DistanceX", 15, 1, 15, 2, Q("7.704956 mm")),
    Sketcher.Constraint("DistanceX", 18, 1, 18, 2, Q("7.704956 mm")),
    Sketcher.Constraint("DistanceX", 20, 2, 20, 1, Q("0.889033 mm")),
    Sketcher.Constraint("DistanceX", 24, 1, 24, 2, Q("7.704956 mm")),
    Sketcher.Constraint("DistanceX", 30, 2, 30, 1, Q("0.889033 mm")),
    Sketcher.Constraint("DistanceX", 32, 2, 32, 1, Q("2.370756 mm")),
    Sketcher.Constraint("DistanceY", 1, 2, 1, 1, Q("1.086596 mm")),
    Sketcher.Constraint("DistanceY", 9, 2, 9, 1, Q("1.839805 mm")),
    Sketcher.Constraint("DistanceY", 14, 1, 14, 2, Q("1.086596 mm")),
    Sketcher.Constraint("DistanceY", 21, 1, 21, 2, Q("3.654915 mm")),
    Sketcher.Constraint("DistanceY", 25, 2, 25, 1, Q("5.630545 mm")),
    Sketcher.Constraint("DistanceY", -1, 1, 19, 2, Q("25.407311 mm")),
    Sketcher.Constraint("DistanceY", -1, 1, 25, 2, Q("18.591388 mm")),
])
pocket2 = body.newObject("PartDesign::Pocket", "Pocket001")
pocket2.Profile = sketch3
pocket2.Length = 1
pocket2.Reversed = True

doc.recompute()
